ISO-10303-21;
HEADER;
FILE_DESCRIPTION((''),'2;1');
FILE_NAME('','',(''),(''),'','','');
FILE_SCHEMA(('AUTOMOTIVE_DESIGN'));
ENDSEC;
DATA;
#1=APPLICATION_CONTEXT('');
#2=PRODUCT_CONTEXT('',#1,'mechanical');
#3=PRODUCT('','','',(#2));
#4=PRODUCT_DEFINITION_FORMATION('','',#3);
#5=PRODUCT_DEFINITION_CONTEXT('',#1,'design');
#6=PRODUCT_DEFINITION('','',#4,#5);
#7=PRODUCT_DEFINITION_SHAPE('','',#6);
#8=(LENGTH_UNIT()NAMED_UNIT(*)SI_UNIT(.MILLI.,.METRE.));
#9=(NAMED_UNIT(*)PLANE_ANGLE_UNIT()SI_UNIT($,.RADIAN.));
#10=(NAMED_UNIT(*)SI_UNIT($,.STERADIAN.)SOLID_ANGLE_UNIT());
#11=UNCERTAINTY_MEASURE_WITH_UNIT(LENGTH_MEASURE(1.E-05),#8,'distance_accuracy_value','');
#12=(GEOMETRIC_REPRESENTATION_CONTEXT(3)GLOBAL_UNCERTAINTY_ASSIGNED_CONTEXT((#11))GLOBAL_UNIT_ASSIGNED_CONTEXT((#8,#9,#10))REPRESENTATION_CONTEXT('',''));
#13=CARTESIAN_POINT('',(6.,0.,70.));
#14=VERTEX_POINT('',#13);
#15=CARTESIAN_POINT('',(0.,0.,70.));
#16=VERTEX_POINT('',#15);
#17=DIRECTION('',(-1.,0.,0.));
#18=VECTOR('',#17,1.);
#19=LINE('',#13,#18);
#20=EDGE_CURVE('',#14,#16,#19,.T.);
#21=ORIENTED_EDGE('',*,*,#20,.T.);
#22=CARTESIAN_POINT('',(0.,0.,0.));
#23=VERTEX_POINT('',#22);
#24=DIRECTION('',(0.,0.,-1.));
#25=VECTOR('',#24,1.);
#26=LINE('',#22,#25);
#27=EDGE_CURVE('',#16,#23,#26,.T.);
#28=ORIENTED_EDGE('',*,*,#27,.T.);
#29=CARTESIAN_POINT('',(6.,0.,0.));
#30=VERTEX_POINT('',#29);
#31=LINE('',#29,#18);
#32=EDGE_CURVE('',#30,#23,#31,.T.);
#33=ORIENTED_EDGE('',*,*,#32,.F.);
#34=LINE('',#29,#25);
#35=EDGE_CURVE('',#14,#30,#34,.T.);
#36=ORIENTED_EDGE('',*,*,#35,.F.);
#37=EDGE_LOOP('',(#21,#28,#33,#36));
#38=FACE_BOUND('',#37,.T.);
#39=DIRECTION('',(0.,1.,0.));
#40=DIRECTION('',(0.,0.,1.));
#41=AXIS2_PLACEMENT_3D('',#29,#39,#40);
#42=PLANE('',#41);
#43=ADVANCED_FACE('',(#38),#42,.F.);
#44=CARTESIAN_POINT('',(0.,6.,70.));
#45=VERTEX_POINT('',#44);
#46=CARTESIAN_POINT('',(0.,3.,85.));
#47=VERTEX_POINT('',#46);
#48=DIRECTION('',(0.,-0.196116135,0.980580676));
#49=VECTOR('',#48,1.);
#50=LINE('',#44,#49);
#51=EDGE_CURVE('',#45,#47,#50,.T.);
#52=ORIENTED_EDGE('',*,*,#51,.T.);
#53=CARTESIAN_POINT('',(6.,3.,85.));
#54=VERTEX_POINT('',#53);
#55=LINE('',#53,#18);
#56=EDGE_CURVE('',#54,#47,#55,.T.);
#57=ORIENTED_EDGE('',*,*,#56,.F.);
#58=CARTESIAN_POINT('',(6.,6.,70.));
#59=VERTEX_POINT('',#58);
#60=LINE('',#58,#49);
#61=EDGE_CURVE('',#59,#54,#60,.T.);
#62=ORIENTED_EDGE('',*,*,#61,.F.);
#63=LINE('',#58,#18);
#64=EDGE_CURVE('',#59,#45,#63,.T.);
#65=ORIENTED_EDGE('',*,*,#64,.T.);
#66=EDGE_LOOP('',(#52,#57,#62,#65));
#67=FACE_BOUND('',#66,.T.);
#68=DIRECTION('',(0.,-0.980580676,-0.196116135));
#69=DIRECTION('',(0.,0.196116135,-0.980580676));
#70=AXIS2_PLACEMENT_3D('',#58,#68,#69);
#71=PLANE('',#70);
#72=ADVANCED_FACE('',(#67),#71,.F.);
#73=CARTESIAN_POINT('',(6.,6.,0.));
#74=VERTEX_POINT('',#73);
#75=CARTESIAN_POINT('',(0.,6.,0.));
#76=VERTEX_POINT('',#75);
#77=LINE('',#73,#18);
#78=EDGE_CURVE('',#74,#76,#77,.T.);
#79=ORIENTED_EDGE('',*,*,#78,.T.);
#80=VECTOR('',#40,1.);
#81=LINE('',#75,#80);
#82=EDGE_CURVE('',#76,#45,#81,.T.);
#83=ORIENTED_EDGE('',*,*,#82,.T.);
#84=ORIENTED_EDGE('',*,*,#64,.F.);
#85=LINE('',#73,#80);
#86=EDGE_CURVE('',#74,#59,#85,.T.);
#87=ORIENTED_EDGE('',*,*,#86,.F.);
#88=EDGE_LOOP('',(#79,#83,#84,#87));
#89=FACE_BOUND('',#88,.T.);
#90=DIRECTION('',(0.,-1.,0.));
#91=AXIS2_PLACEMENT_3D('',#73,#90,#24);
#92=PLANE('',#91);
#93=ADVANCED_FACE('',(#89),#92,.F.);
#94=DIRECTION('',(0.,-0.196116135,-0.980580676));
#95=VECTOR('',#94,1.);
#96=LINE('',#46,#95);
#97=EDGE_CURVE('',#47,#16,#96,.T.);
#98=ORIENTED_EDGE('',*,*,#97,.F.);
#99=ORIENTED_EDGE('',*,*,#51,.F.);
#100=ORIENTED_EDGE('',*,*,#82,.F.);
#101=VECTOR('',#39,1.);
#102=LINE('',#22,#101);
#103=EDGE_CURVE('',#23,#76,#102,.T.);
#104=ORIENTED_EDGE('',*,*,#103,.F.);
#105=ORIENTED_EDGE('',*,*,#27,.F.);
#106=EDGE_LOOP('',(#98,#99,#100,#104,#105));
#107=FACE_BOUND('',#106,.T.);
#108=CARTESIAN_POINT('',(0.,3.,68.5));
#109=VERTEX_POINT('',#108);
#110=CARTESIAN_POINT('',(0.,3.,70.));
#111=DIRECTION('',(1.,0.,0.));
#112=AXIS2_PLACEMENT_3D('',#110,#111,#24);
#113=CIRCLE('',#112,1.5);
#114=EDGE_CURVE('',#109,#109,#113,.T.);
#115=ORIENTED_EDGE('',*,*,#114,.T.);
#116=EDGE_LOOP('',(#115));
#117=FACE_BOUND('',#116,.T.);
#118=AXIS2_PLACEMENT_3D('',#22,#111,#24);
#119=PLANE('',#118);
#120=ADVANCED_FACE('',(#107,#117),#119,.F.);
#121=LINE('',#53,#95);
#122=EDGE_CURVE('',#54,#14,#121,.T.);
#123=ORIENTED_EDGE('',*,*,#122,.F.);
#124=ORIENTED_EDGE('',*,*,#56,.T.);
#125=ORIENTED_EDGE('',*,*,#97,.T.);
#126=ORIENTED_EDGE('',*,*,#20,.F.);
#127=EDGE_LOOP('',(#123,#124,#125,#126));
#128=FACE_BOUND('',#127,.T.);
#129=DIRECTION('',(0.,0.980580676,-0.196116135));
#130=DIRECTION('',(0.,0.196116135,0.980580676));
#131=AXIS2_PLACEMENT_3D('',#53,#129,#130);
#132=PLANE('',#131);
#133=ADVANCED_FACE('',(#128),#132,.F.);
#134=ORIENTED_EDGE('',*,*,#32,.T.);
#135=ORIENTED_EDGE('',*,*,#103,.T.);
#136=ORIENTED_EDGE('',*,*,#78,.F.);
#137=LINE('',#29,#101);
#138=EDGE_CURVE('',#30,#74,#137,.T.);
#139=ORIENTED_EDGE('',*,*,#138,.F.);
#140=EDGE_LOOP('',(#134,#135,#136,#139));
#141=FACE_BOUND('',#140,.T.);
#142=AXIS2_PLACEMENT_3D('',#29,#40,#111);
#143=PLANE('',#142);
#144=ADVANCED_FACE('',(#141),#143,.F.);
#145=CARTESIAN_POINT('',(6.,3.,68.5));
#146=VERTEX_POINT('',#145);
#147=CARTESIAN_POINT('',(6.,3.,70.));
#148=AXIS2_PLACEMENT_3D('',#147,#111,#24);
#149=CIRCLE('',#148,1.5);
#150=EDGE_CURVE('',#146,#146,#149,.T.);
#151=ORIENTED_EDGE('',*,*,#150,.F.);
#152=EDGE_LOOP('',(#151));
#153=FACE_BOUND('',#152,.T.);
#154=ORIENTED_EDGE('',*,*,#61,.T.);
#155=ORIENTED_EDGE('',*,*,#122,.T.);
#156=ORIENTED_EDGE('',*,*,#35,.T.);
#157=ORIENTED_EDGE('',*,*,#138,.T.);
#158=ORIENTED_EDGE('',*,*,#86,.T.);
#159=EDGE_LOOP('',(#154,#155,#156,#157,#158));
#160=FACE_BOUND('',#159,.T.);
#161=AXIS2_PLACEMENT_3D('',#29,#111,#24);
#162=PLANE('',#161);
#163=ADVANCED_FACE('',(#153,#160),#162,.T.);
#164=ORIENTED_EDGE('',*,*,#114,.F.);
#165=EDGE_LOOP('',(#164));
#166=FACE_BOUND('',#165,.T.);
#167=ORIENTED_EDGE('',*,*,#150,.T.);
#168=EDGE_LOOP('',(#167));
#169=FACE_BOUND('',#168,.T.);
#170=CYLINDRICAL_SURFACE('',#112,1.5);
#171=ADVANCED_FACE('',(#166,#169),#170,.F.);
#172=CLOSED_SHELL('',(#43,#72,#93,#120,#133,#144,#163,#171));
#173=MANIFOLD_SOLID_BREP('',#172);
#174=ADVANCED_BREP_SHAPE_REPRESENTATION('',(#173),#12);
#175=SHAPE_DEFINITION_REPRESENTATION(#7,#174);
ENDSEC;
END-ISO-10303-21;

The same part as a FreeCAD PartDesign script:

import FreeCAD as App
import Part
import Sketcher

V = App.Vector


def add_polygon(sketch, points):
    """Adds a closed chain of lines whose ends are joined by coincident constraints."""
    first, n = sketch.GeometryCount, len(points)
    for a, b in zip(points, points[1:] + points[:1]):
        sketch.addGeometry(Part.LineSegment(App.Vector(*a, 0), App.Vector(*b, 0)), False)
    for i in range(n):
        sketch.addConstraint(Sketcher.Constraint("Coincident", first + i, 2, first + (i + 1) % n, 1))

doc = App.newDocument("Part")
body = doc.addObject("PartDesign::Body", "Body")

sketch1 = body.newObject("Sketcher::SketchObject", "Sketch")
sketch1.AttachmentSupport = (doc.getObject("YZ_Plane"), [""])
sketch1.MapMode = "FlatFace"
add_polygon(sketch1, [(0, 70), (0, 0), (6, 0), (6, 70), (3, 85)])
sketch1.addConstraint(Sketcher.Constraint("Vertical", 0))
sketch1.addConstraint(Sketcher.Constraint("Horizontal", 1))
sketch1.addConstraint(Sketcher.Constraint("Vertical", 2))
sketch1.addConstraint(Sketcher.Constraint("Coincident", 0, 2, -1, 1))
sketch1.addConstraint(Sketcher.Constraint("Horizontal", 2, 2, 4, 2))
sketch1.addConstraint(Sketcher.Constraint("Equal", 3, 4))
sketch1.addConstraint(Sketcher.Constraint("DistanceX", 1, 1, 1, 2, 6.0))
sketch1.addConstraint(Sketcher.Constraint("DistanceY", 0, 2, 0, 1, 70.0))
sketch1.addConstraint(Sketcher.Constraint("DistanceY", -1, 1, 3, 2, 85.0))
pad1 = body.newObject("PartDesign::Pad", "Pad")
pad1.Profile = sketch1
pad1.Length = 6

sketch2 = body.newObject("Sketcher::SketchObject", "Sketch001")
sketch2.AttachmentSupport = (doc.getObject("YZ_Plane"), [""])
sketch2.MapMode = "FlatFace"
sketch2.AttachmentOffset = App.Placement(V(0, 0, 6), App.Rotation())
sketch2.addGeometry(Part.Circle(V(3, 70, 0), V(0, 0, 1), 1.5), False)
sketch2.addConstraint(Sketcher.Constraint("Diameter", 0, 3.0))
sketch2.addConstraint(Sketcher.Constraint("DistanceX", -1, 1, 0, 3, 3.0))
sketch2.addConstraint(Sketcher.Constraint("DistanceY", -1, 1, 0, 3, 70.0))
pocket1 = body.newObject("PartDesign::Pocket", "Pocket")
pocket1.Profile = sketch2
pocket1.Length = 6

doc.recompute()
